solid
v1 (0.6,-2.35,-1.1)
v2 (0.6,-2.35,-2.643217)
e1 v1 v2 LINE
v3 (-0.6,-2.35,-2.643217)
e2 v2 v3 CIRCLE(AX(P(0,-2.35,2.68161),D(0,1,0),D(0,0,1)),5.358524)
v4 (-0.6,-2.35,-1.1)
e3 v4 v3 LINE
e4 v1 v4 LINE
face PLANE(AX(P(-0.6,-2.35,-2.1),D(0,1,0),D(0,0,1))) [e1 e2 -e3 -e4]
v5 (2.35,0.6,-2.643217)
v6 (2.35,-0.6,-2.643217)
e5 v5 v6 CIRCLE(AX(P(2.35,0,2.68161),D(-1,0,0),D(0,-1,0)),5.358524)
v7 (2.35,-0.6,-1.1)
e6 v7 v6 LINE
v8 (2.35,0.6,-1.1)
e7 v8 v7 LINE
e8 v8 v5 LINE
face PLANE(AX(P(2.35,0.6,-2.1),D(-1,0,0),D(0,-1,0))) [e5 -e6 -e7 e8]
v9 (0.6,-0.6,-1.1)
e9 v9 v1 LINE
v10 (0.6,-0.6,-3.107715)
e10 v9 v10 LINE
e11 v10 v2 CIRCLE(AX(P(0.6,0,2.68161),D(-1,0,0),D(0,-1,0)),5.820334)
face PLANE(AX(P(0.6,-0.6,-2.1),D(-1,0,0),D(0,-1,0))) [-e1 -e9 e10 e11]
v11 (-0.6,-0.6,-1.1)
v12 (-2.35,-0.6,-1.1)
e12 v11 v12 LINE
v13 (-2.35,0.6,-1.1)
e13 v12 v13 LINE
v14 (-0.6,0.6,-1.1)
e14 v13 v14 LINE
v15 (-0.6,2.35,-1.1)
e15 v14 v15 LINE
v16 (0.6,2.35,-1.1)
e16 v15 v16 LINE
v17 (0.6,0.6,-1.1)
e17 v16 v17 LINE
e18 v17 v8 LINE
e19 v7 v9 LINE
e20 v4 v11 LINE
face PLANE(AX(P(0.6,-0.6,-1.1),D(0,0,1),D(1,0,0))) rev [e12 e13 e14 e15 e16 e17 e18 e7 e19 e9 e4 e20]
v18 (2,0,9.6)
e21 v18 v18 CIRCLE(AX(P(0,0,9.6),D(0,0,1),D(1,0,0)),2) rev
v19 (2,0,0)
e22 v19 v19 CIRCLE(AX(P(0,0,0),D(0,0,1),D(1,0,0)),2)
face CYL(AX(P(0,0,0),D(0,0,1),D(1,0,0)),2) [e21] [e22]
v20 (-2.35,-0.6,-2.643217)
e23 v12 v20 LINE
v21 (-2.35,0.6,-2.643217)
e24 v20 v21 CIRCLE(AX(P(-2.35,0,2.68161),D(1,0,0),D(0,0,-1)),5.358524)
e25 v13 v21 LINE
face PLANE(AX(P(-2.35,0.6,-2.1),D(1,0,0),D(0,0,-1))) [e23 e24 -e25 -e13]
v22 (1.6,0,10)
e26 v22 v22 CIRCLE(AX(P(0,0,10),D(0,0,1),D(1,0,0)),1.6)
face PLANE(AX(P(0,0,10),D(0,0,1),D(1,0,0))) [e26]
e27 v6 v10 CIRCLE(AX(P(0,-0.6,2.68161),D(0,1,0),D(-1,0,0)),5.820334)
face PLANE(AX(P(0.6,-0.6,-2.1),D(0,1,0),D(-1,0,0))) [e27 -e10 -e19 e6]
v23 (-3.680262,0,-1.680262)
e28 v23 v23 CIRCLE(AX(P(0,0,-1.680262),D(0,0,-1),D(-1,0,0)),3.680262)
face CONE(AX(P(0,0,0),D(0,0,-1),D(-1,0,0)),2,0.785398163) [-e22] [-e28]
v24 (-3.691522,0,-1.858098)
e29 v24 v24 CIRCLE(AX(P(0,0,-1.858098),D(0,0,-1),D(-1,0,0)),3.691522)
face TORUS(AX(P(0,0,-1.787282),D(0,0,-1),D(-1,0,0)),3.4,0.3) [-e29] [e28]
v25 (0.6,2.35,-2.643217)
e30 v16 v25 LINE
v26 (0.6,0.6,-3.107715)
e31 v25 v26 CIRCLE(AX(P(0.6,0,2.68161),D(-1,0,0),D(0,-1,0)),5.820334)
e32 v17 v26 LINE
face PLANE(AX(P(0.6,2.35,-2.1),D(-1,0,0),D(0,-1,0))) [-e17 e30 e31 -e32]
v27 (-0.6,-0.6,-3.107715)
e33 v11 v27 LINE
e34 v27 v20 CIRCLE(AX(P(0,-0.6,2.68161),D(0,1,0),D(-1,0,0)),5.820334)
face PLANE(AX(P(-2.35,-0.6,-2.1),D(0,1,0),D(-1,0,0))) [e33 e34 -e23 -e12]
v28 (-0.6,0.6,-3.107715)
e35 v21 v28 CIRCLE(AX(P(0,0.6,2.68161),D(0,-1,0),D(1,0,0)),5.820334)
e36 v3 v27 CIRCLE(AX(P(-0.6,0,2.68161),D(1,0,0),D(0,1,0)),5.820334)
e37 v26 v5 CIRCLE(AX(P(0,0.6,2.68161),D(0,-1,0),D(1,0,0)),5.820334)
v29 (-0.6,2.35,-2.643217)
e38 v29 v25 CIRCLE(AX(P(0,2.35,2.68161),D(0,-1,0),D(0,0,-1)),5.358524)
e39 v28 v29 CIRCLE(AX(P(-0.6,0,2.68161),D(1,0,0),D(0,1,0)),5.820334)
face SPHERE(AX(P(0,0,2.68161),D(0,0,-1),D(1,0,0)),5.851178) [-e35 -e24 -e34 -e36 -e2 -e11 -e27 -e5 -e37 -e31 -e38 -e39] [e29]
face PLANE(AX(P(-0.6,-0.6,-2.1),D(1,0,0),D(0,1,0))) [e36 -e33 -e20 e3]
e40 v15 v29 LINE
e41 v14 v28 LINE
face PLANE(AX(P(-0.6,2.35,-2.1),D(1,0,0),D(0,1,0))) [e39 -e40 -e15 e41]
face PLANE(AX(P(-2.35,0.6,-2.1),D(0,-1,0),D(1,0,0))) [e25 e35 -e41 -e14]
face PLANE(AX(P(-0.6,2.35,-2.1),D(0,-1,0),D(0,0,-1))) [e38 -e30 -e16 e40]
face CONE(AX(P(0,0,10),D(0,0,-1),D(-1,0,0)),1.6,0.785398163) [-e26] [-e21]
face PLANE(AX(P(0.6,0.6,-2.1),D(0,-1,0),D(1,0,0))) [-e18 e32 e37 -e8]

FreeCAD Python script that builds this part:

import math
import FreeCAD as App
import Part
import Sketcher

V = App.Vector
Q = App.Units.Quantity


def edges_at(feature, points):
    """Names of the edges that pass closest to the given points."""
    edges = feature.Shape.Edges
    near = lambda p: min(range(len(edges)), key=lambda i: edges[i].distToShape(Part.Vertex(*p))[0])
    return sorted({f"Edge{near(p) + 1}" for p in points})


def add_polygon(sketch, points):
    """Adds a closed chain of lines whose ends are joined by coincident constraints."""
    first, n = sketch.GeometryCount, len(points)
    for a, b in zip(points, points[1:] + points[:1]):
        sketch.addGeometry(Part.LineSegment(App.Vector(*a, 0), App.Vector(*b, 0)), False)
    for i in range(n):
        sketch.addConstraint(Sketcher.Constraint("Coincident", first + i, 2, first + (i + 1) % n, 1))

doc = App.newDocument("Part")
body = doc.addObject("PartDesign::Body", "Body")

# Sketch on XZ plane
sketch1 = body.newObject("Sketcher::SketchObject", "Sketch")
sketch1.AttachmentSupport = (doc.getObject("XZ_Plane"), [""])
sketch1.MapMode = "FlatFace"
sketch1.addGeometry([
    Part.LineSegment(V(0, 0, 0), V(2, 0, 0)),  # 0
    Part.LineSegment(V(2, 0, 0), V(3.68, -1.68, 0)),  # 1
    Part.ArcOfCircle(Part.Circle(V(3.4, -1.79, 0), V(0, 0, 1), 0.3), math.radians(-14), math.radians(21)),  # 2
    Part.ArcOfCircle(Part.Circle(V(0, 2.68, 0), V(0, 0, 1), 5.85), math.radians(-90), math.radians(-51)),  # 3
    Part.LineSegment(V(0, -3.17, 0), V(0, 0, 0)),  # 4
], False)
sketch1.addConstraint([
    Sketcher.Constraint("Coincident", 0, 2, 1, 1),
    Sketcher.Constraint("Coincident", 1, 2, 2, 2),
    Sketcher.Constraint("Coincident", 2, 1, 3, 2),
    Sketcher.Constraint("Coincident", 3, 1, 4, 1),
    Sketcher.Constraint("Coincident", 4, 2, 0, 1),
    Sketcher.Constraint("Horizontal", 0),
    Sketcher.Constraint("Vertical", 4),
    Sketcher.Constraint("Coincident", 4, 2, -1, 1),
    Sketcher.Constraint("PointOnObject", 3, 3, -2),
    Sketcher.Constraint("Radius", 2, 0.3),
    Sketcher.Constraint("DistanceX", 0, 1, 0, 2, 2.0),
    Sketcher.Constraint("Angle", 1, Q("-45 deg")),
    Sketcher.Constraint("DistanceX", -1, 1, 2, 3, 3.4),
    Sketcher.Constraint("Radius", 3, 5.851178),
    Sketcher.Constraint("Distance", 1, 2.376249),
    Sketcher.Constraint("DistanceY", 4, 1, 4, 2, 3.169568),
])
revolution = body.newObject("PartDesign::Revolution", "Revolution")
revolution.Profile = sketch1
revolution.ReferenceAxis = (sketch1, ["V_Axis"])
revolution.Angle = 360

# Sketch on XY plane
sketch2 = body.newObject("Sketcher::SketchObject", "Sketch001")
sketch2.AttachmentSupport = (doc.getObject("XY_Plane"), [""])
sketch2.MapMode = "FlatFace"
sketch2.AttachmentOffset = App.Placement(V(0, 0, -3.1), App.Rotation())
add_polygon(sketch2, [(0.6, -2.4), (0.6, -0.6), (2.4, -0.6), (2.4, 0.6), (0.6, 0.6), (0.6, 2.4), (-0.6, 2.4), (-0.6, 0.6), (-2.4, 0.6), (-2.4, -0.6), (-0.6, -0.6), (-0.6, -2.4)])  # lines 0-11
sketch2.addConstraint([
    Sketcher.Constraint("Vertical", 0),
    Sketcher.Constraint("Horizontal", 1),
    Sketcher.Constraint("Vertical", 2),
    Sketcher.Constraint("Horizontal", 3),
    Sketcher.Constraint("Vertical", 4),
    Sketcher.Constraint("Horizontal", 5),
    Sketcher.Constraint("Vertical", 6),
    Sketcher.Constraint("Horizontal", 7),
    Sketcher.Constraint("Vertical", 8),
    Sketcher.Constraint("Horizontal", 9),
    Sketcher.Constraint("Vertical", 10),
    Sketcher.Constraint("Horizontal", 11),
    Sketcher.Constraint("Symmetric", 0, 2, 6, 2, -1, 1),
    Sketcher.Constraint("Symmetric", 2, 2, 8, 2, -1, 1),
    Sketcher.Constraint("Symmetric", 4, 2, 10, 2, -1, 1),
    Sketcher.Constraint("Symmetric", 3, 2, 6, 2, -2),
    Sketcher.Constraint("Equal", 9, 0),
    Sketcher.Constraint("Equal", 11, 2),
    Sketcher.Constraint("DistanceX", 5, 2, 5, 1, 1.2),
    Sketcher.Constraint("DistanceX", 1, 1, 1, 2, 1.75),
])
pocket1 = body.newObject("PartDesign::Pocket", "Pocket")
pocket1.Profile = sketch2
pocket1.Type = "TwoLengths"
pocket1.Length = 1
pocket1.Length2 = 10
pocket1.Reversed = True

# Sketch on XZ plane
sketch3 = body.newObject("Sketcher::SketchObject", "Sketch002")
sketch3.AttachmentSupport = (doc.getObject("XZ_Plane"), [""])
sketch3.MapMode = "FlatFace"
add_polygon(sketch3, [(0, 0), (0, 10), (2, 10), (2, 0)])  # lines 0-3
sketch3.addConstraint([
    Sketcher.Constraint("Vertical", 0),
    Sketcher.Constraint("Horizontal", 1),
    Sketcher.Constraint("Vertical", 2),
    Sketcher.Constraint("Horizontal", 3),
    Sketcher.Constraint("Coincident", 3, 2, -1, 1),
    Sketcher.Constraint("DistanceX", 1, 1, 1, 2, 2.0),
    Sketcher.Constraint("DistanceY", 0, 1, 0, 2, 10.0),
])
revolution2 = body.newObject("PartDesign::Revolution", "Revolution001")
revolution2.Profile = sketch3
revolution2.ReferenceAxis = (sketch3, ["V_Axis"])
revolution2.Angle = 360
doc.recompute()

chamfer = body.newObject("PartDesign::Chamfer", "Chamfer")
chamfer.Base = (revolution2, edges_at(revolution2, [(-1.938, 0.495, 10)]))
chamfer.Size = 0.4

# Sketch on XY plane
sketch4 = body.newObject("Sketcher::SketchObject", "Sketch003")
sketch4.AttachmentSupport = (doc.getObject("XY_Plane"), [""])
sketch4.MapMode = "FlatFace"
sketch4.AttachmentOffset = App.Placement(V(0, 0, -2.1), App.Rotation())
add_polygon(sketch4, [(-2.4, 0.6), (-0.6, 0.6), (-0.6, 2.4), (0.6, 2.4), (0.6, 0.6), (2.4, 0.6), (2.4, -0.6), (0.6, -0.6), (0.6, -2.4), (-0.6, -2.4), (-0.6, -0.6), (-2.4, -0.6)])  # lines 0-11
sketch4.addConstraint([
    Sketcher.Constraint("Horizontal", 0),
    Sketcher.Constraint("Vertical", 1),
    Sketcher.Constraint("Horizontal", 2),
    Sketcher.Constraint("Vertical", 3),
    Sketcher.Constraint("Horizontal", 4),
    Sketcher.Constraint("Vertical", 5),
    Sketcher.Constraint("Horizontal", 6),
    Sketcher.Constraint("Vertical", 7),
    Sketcher.Constraint("Horizontal", 8),
    Sketcher.Constraint("Vertical", 9),
    Sketcher.Constraint("Horizontal", 10),
    Sketcher.Constraint("Vertical", 11),
    Sketcher.Constraint("Symmetric", 0, 2, 6, 2, -1, 1),
    Sketcher.Constraint("Symmetric", 2, 2, 8, 2, -1, 1),
    Sketcher.Constraint("Symmetric", 4, 2, 10, 2, -1, 1),
    Sketcher.Constraint("Symmetric", 0, 2, 3, 2, -2),
    Sketcher.Constraint("Equal", 10, 1),
    Sketcher.Constraint("Equal", 8, 5),
    Sketcher.Constraint("DistanceX", 2, 1, 2, 2, 1.2),
    Sketcher.Constraint("DistanceX", 0, 1, 0, 2, 1.75),
])
pocket2 = body.newObject("PartDesign::Pocket", "Pocket001")
pocket2.Profile = sketch4
pocket2.Length = 1
pocket2.Reversed = True

doc.recompute()
